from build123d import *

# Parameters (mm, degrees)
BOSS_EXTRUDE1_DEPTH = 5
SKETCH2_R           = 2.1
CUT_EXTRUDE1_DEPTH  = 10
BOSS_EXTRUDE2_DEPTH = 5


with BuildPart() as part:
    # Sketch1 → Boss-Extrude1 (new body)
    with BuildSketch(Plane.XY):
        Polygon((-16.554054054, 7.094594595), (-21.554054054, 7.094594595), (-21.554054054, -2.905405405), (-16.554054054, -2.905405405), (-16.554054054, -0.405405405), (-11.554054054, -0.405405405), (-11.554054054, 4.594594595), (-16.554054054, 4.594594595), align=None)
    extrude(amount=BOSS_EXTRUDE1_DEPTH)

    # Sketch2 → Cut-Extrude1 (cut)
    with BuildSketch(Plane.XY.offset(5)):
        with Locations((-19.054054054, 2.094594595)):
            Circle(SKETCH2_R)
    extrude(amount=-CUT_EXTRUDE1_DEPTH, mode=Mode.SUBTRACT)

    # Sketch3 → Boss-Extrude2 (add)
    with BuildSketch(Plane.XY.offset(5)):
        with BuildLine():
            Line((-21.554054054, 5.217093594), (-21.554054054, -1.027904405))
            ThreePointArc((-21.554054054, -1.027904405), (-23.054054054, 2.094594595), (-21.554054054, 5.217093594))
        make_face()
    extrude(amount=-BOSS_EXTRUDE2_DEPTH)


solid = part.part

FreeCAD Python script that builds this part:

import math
import FreeCAD as App
import Part
import Sketcher

doc = App.newDocument("Part")
body = doc.addObject("PartDesign::Body", "Body")

# Sketch on XY plane
sketch1 = body.newObject("Sketcher::SketchObject", "Sketch")
sketch1.AttachmentSupport = (doc.getObject("XY_Plane"), [""])
sketch1.MapMode = "FlatFace"
sketch1.addGeometry(Part.LineSegment(App.Vector(-16.6, 7.1, 0), App.Vector(-21.6, 7.1, 0)), False)
sketch1.addGeometry(Part.LineSegment(App.Vector(-21.6, 7.1, 0), App.Vector(-21.6, -2.9, 0)), False)
sketch1.addGeometry(Part.LineSegment(App.Vector(-21.6, -2.9, 0), App.Vector(-16.6, -2.9, 0)), False)
sketch1.addGeometry(Part.LineSegment(App.Vector(-16.6, -2.9, 0), App.Vector(-16.6, -0.4, 0)), False)
sketch1.addGeometry(Part.LineSegment(App.Vector(-16.6, -0.4, 0), App.Vector(-11.6, -0.4, 0)), False)
sketch1.addGeometry(Part.LineSegment(App.Vector(-11.6, -0.4, 0), App.Vector(-11.6, 4.6, 0)), False)
sketch1.addGeometry(Part.LineSegment(App.Vector(-11.6, 4.6, 0), App.Vector(-16.6, 4.6, 0)), False)
sketch1.addGeometry(Part.LineSegment(App.Vector(-16.6, 4.6, 0), App.Vector(-16.6, 7.1, 0)), False)
sketch1.addConstraint(Sketcher.Constraint("Coincident", 0, 2, 1, 1))
sketch1.addConstraint(Sketcher.Constraint("Coincident", 1, 2, 2, 1))
sketch1.addConstraint(Sketcher.Constraint("Coincident", 2, 2, 3, 1))
sketch1.addConstraint(Sketcher.Constraint("Coincident", 3, 2, 4, 1))
sketch1.addConstraint(Sketcher.Constraint("Coincident", 4, 2, 5, 1))
sketch1.addConstraint(Sketcher.Constraint("Coincident", 5, 2, 6, 1))
sketch1.addConstraint(Sketcher.Constraint("Coincident", 6, 2, 7, 1))
sketch1.addConstraint(Sketcher.Constraint("Coincident", 7, 2, 0, 1))
sketch1.addConstraint(Sketcher.Constraint("Horizontal", 0))
sketch1.addConstraint(Sketcher.Constraint("Vertical", 1))
sketch1.addConstraint(Sketcher.Constraint("Horizontal", 2))
sketch1.addConstraint(Sketcher.Constraint("Vertical", 3))
sketch1.addConstraint(Sketcher.Constraint("Horizontal", 4))
sketch1.addConstraint(Sketcher.Constraint("Vertical", 5))
sketch1.addConstraint(Sketcher.Constraint("Horizontal", 6))
sketch1.addConstraint(Sketcher.Constraint("Vertical", 7))
sketch1.addConstraint(Sketcher.Constraint("Vertical", 3, 2, 6, 2))
sketch1.addConstraint(Sketcher.Constraint("Equal", 2, 4))
sketch1.addConstraint(Sketcher.Constraint("Equal", 6, 5))
sketch1.addConstraint(Sketcher.Constraint("Equal", 3, 7))
sketch1.addConstraint(Sketcher.Constraint("DistanceX", 0, 2, 0, 1, 5.0))
sketch1.addConstraint(Sketcher.Constraint("DistanceY", 1, 2, 1, 1, 10.0))
sketch1.addConstraint(Sketcher.Constraint("DistanceX", 0, 2, -1, 1, 21.554054))
sketch1.addConstraint(Sketcher.Constraint("DistanceY", -1, 1, 0, 2, 7.094595))
pad1 = body.newObject("PartDesign::Pad", "Pad")
pad1.Profile = sketch1
pad1.Length = 5

# Sketch on XY plane
sketch2 = body.newObject("Sketcher::SketchObject", "Sketch001")
sketch2.AttachmentSupport = (doc.getObject("XY_Plane"), [""])
sketch2.MapMode = "FlatFace"
sketch2.AttachmentOffset = App.Placement(App.Vector(0, 0, 5), App.Rotation())
sketch2.addGeometry(Part.Circle(App.Vector(-19.1, 2.1, 0), App.Vector(0, 0, 1), 2.1), False)
sketch2.addConstraint(Sketcher.Constraint("Diameter", 0, 4.2))
sketch2.addConstraint(Sketcher.Constraint("DistanceX", 0, 3, -1, 1, 19.054054))
sketch2.addConstraint(Sketcher.Constraint("DistanceY", -1, 1, 0, 3, 2.094595))
pocket1 = body.newObject("PartDesign::Pocket", "Pocket")
pocket1.Profile = sketch2
pocket1.Length = 10

# Sketch on XY plane
sketch3 = body.newObject("Sketcher::SketchObject", "Sketch002")
sketch3.AttachmentSupport = (doc.getObject("XY_Plane"), [""])
sketch3.MapMode = "FlatFace"
sketch3.AttachmentOffset = App.Placement(App.Vector(0, 0, 5), App.Rotation())
sketch3.addGeometry(Part.LineSegment(App.Vector(-21.6, -1, 0), App.Vector(-21.6, 5.2, 0)), False)
sketch3.addGeometry(Part.ArcOfCircle(Part.Circle(App.Vector(-19.1, 2.1, 0), App.Vector(0, 0, 1), 4), math.radians(129), math.radians(231)), False)
sketch3.addConstraint(Sketcher.Constraint("Coincident", 0, 1, 1, 2))
sketch3.addConstraint(Sketcher.Constraint("Coincident", 1, 1, 0, 2))
sketch3.addConstraint(Sketcher.Constraint("Vertical", 0))
sketch3.addConstraint(Sketcher.Constraint("Radius", 1, 4.0))
sketch3.addConstraint(Sketcher.Constraint("DistanceX", 0, 1, 1, 3, 2.5))
sketch3.addConstraint(Sketcher.Constraint("DistanceX", 1, 3, -1, 1, 19.054054))
sketch3.addConstraint(Sketcher.Constraint("DistanceY", -1, 1, 1, 3, 2.094595))
pad2 = body.newObject("PartDesign::Pad", "Pad001")
pad2.Profile = sketch3
pad2.Length = 5
pad2.Reversed = True

doc.recompute()
